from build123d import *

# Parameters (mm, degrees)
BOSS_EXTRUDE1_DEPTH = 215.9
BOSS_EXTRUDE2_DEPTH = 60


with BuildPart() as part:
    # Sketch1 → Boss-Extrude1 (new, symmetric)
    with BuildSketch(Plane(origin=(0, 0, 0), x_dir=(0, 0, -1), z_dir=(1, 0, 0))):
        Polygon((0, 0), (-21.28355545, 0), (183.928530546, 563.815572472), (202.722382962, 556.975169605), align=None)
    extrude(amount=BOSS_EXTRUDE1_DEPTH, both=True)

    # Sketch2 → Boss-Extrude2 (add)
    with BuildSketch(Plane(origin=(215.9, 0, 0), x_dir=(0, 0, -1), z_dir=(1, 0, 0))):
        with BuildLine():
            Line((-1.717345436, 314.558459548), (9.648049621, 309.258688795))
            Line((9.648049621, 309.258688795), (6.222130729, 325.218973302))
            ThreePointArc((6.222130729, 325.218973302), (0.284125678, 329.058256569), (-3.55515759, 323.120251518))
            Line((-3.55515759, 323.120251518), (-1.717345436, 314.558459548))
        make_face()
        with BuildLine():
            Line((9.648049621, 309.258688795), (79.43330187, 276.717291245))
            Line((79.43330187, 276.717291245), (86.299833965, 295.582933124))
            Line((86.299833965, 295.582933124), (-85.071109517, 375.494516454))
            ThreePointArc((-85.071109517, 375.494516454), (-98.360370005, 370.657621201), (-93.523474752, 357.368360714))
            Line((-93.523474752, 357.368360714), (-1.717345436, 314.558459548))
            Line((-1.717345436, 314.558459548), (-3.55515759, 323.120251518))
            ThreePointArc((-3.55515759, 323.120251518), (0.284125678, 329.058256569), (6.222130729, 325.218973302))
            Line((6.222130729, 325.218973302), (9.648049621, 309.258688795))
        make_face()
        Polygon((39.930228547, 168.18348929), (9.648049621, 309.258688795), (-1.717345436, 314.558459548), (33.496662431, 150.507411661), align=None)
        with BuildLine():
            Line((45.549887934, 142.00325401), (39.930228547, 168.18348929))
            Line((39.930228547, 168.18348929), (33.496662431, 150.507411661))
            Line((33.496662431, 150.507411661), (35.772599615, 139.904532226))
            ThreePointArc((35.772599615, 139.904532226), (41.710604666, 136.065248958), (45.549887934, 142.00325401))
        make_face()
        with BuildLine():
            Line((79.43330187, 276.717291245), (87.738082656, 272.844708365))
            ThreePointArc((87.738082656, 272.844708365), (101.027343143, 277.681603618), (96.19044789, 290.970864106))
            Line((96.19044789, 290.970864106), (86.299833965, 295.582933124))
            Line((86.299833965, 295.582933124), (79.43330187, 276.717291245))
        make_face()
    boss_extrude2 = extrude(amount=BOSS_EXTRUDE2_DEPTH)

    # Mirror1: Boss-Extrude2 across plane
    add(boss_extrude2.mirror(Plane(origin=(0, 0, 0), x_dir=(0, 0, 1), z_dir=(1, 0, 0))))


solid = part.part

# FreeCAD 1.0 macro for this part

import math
import FreeCAD as App
import Part
import Sketcher
Q = App.Units.Quantity

doc = App.newDocument("Part")
body = doc.addObject("PartDesign::Body", "Body")

# Sketch on YZ plane
sketch1 = body.newObject("Sketcher::SketchObject", "Sketch")
sketch1.AttachmentSupport = (doc.getObject("YZ_Plane"), [""])
sketch1.MapMode = "FlatFace"
sketch1.addGeometry([
    Part.LineSegment(App.Vector(0, 21, 0), App.Vector(0, 0, 0)),
    Part.LineSegment(App.Vector(0, 0, 0), App.Vector(557, -203, 0)),
    Part.LineSegment(App.Vector(557, -203, 0), App.Vector(564, -184, 0)),
    Part.LineSegment(App.Vector(564, -184, 0), App.Vector(0, 21, 0)),
], False)
sketch1.addConstraint([
    Sketcher.Constraint("Coincident", 0, 2, 1, 1),
    Sketcher.Constraint("Coincident", 1, 2, 2, 1),
    Sketcher.Constraint("Coincident", 2, 2, 3, 1),
    Sketcher.Constraint("Coincident", 3, 2, 0, 1),
    Sketcher.Constraint("Vertical", 0),
    Sketcher.Constraint("Coincident", 0, 2, -1, 1),
    Sketcher.Constraint("Perpendicular", 1, 2),
    Sketcher.Constraint("Perpendicular", 2, 3),
    Sketcher.Constraint("Angle", 1, Q("-20 deg")),
    Sketcher.Constraint("Distance", 2, 20.0),
    Sketcher.Constraint("Distance", 3, 600.0),
])
pad1 = body.newObject("PartDesign::Pad", "Pad")
pad1.Profile = sketch1
pad1.Length = 431.8
pad1.Midplane = True

# Sketch on YZ plane
sketch2 = body.newObject("Sketcher::SketchObject", "Sketch001")
sketch2.AttachmentSupport = (doc.getObject("YZ_Plane"), [""])
sketch2.MapMode = "FlatFace"
sketch2.AttachmentOffset = App.Placement(App.Vector(0, 0, 215.9), App.Rotation())
sketch2.addGeometry([
    Part.LineSegment(App.Vector(309, -10, 0), App.Vector(277, -79, 0)),  # 0
    Part.LineSegment(App.Vector(277, -79, 0), App.Vector(273, -88, 0)),  # 1
    Part.ArcOfCircle(Part.Circle(App.Vector(282, -92, 0), App.Vector(0, 0, 1), 10), math.radians(155), math.radians(335)),  # 2
    Part.LineSegment(App.Vector(291, -96, 0), App.Vector(296, -86, 0)),  # 3
    Part.LineSegment(App.Vector(296, -86, 0), App.Vector(375, 85, 0)),  # 4
    Part.ArcOfCircle(Part.Circle(App.Vector(366, 89, 0), App.Vector(0, 0, 1), 10), math.radians(-25), math.radians(155)),  # 5
    Part.LineSegment(App.Vector(357, 94, 0), App.Vector(315, 2, 0)),  # 6
    Part.LineSegment(App.Vector(315, 2, 0), App.Vector(151, -33, 0)),  # 7
    Part.LineSegment(App.Vector(151, -33, 0), App.Vector(140, -36, 0)),  # 8
    Part.ArcOfCircle(Part.Circle(App.Vector(141, -41, 0), App.Vector(0, 0, 1), 5), math.radians(102), math.radians(282)),  # 9
    Part.LineSegment(App.Vector(142, -46, 0), App.Vector(168, -40, 0)),  # 10
    Part.LineSegment(App.Vector(168, -40, 0), App.Vector(309, -10, 0)),  # 11
], False)
sketch2.addConstraint([
    Sketcher.Constraint("Coincident", 0, 2, 1, 1),
    Sketcher.Constraint("Tangent", 1, 2, 2, 1),
    Sketcher.Constraint("Tangent", 2, 2, 3, 1),
    Sketcher.Constraint("Coincident", 3, 2, 4, 1),
    Sketcher.Constraint("Tangent", 4, 2, 5, 1),
    Sketcher.Constraint("Tangent", 5, 2, 6, 1),
    Sketcher.Constraint("Coincident", 6, 2, 7, 1),
    Sketcher.Constraint("Coincident", 7, 2, 8, 1),
    Sketcher.Constraint("Tangent", 8, 2, 9, 1),
    Sketcher.Constraint("Tangent", 9, 2, 10, 1),
    Sketcher.Constraint("Coincident", 10, 2, 11, 1),
    Sketcher.Constraint("Coincident", 11, 2, 0, 1),
    Sketcher.Constraint("Equal", 2, 5),
    Sketcher.Constraint("Parallel", 0, 1),
    Sketcher.Constraint("Parallel", 1, 3),
    Sketcher.Constraint("Parallel", 3, 4),
    Sketcher.Constraint("Parallel", 4, 6),
    Sketcher.Constraint("Parallel", 7, 8),
    Sketcher.Constraint("Parallel", 8, 10),
    Sketcher.Constraint("Parallel", 10, 11),
    Sketcher.Constraint("Radius", 2, 10.0),
    Sketcher.Constraint("Radius", 9, 5.0),
    Sketcher.Constraint("Angle", 0, Q("-115 deg")),
    Sketcher.Constraint("DistanceY", 0, 2, -1, 1, 79.433302),
    Sketcher.Constraint("DistanceY", 8, 2, -1, 1, 35.7726),
    Sketcher.Constraint("DistanceX", 9, 3, 0, 2, 135.763398),
    Sketcher.Constraint("Distance", 1, 9.163312),
    Sketcher.Constraint("Distance", 7, 167.78788),
    Sketcher.Constraint("Distance", 10, 26.776581),
    Sketcher.Constraint("DistanceX", -1, 1, 5, 3, 366.431439),
    Sketcher.Constraint("DistanceX", -1, 1, 0, 2, 276.717291),
    Sketcher.Constraint("DistanceX", -1, 1, 6, 2, 314.55846),
    Sketcher.Constraint("DistanceX", 2, 2, 3, 2, 4.612069),
])
pad2 = body.newObject("PartDesign::Pad", "Pad001")
pad2.Profile = sketch2
pad2.Length = 60
doc.recompute()

mirrored = body.newObject("PartDesign::Mirrored", "Mirrored")
mirrored.Originals = [pad2]
mirrored.MirrorPlane = (doc.getObject("YZ_Plane"), [""])
body.Tip = mirrored

doc.recompute()
